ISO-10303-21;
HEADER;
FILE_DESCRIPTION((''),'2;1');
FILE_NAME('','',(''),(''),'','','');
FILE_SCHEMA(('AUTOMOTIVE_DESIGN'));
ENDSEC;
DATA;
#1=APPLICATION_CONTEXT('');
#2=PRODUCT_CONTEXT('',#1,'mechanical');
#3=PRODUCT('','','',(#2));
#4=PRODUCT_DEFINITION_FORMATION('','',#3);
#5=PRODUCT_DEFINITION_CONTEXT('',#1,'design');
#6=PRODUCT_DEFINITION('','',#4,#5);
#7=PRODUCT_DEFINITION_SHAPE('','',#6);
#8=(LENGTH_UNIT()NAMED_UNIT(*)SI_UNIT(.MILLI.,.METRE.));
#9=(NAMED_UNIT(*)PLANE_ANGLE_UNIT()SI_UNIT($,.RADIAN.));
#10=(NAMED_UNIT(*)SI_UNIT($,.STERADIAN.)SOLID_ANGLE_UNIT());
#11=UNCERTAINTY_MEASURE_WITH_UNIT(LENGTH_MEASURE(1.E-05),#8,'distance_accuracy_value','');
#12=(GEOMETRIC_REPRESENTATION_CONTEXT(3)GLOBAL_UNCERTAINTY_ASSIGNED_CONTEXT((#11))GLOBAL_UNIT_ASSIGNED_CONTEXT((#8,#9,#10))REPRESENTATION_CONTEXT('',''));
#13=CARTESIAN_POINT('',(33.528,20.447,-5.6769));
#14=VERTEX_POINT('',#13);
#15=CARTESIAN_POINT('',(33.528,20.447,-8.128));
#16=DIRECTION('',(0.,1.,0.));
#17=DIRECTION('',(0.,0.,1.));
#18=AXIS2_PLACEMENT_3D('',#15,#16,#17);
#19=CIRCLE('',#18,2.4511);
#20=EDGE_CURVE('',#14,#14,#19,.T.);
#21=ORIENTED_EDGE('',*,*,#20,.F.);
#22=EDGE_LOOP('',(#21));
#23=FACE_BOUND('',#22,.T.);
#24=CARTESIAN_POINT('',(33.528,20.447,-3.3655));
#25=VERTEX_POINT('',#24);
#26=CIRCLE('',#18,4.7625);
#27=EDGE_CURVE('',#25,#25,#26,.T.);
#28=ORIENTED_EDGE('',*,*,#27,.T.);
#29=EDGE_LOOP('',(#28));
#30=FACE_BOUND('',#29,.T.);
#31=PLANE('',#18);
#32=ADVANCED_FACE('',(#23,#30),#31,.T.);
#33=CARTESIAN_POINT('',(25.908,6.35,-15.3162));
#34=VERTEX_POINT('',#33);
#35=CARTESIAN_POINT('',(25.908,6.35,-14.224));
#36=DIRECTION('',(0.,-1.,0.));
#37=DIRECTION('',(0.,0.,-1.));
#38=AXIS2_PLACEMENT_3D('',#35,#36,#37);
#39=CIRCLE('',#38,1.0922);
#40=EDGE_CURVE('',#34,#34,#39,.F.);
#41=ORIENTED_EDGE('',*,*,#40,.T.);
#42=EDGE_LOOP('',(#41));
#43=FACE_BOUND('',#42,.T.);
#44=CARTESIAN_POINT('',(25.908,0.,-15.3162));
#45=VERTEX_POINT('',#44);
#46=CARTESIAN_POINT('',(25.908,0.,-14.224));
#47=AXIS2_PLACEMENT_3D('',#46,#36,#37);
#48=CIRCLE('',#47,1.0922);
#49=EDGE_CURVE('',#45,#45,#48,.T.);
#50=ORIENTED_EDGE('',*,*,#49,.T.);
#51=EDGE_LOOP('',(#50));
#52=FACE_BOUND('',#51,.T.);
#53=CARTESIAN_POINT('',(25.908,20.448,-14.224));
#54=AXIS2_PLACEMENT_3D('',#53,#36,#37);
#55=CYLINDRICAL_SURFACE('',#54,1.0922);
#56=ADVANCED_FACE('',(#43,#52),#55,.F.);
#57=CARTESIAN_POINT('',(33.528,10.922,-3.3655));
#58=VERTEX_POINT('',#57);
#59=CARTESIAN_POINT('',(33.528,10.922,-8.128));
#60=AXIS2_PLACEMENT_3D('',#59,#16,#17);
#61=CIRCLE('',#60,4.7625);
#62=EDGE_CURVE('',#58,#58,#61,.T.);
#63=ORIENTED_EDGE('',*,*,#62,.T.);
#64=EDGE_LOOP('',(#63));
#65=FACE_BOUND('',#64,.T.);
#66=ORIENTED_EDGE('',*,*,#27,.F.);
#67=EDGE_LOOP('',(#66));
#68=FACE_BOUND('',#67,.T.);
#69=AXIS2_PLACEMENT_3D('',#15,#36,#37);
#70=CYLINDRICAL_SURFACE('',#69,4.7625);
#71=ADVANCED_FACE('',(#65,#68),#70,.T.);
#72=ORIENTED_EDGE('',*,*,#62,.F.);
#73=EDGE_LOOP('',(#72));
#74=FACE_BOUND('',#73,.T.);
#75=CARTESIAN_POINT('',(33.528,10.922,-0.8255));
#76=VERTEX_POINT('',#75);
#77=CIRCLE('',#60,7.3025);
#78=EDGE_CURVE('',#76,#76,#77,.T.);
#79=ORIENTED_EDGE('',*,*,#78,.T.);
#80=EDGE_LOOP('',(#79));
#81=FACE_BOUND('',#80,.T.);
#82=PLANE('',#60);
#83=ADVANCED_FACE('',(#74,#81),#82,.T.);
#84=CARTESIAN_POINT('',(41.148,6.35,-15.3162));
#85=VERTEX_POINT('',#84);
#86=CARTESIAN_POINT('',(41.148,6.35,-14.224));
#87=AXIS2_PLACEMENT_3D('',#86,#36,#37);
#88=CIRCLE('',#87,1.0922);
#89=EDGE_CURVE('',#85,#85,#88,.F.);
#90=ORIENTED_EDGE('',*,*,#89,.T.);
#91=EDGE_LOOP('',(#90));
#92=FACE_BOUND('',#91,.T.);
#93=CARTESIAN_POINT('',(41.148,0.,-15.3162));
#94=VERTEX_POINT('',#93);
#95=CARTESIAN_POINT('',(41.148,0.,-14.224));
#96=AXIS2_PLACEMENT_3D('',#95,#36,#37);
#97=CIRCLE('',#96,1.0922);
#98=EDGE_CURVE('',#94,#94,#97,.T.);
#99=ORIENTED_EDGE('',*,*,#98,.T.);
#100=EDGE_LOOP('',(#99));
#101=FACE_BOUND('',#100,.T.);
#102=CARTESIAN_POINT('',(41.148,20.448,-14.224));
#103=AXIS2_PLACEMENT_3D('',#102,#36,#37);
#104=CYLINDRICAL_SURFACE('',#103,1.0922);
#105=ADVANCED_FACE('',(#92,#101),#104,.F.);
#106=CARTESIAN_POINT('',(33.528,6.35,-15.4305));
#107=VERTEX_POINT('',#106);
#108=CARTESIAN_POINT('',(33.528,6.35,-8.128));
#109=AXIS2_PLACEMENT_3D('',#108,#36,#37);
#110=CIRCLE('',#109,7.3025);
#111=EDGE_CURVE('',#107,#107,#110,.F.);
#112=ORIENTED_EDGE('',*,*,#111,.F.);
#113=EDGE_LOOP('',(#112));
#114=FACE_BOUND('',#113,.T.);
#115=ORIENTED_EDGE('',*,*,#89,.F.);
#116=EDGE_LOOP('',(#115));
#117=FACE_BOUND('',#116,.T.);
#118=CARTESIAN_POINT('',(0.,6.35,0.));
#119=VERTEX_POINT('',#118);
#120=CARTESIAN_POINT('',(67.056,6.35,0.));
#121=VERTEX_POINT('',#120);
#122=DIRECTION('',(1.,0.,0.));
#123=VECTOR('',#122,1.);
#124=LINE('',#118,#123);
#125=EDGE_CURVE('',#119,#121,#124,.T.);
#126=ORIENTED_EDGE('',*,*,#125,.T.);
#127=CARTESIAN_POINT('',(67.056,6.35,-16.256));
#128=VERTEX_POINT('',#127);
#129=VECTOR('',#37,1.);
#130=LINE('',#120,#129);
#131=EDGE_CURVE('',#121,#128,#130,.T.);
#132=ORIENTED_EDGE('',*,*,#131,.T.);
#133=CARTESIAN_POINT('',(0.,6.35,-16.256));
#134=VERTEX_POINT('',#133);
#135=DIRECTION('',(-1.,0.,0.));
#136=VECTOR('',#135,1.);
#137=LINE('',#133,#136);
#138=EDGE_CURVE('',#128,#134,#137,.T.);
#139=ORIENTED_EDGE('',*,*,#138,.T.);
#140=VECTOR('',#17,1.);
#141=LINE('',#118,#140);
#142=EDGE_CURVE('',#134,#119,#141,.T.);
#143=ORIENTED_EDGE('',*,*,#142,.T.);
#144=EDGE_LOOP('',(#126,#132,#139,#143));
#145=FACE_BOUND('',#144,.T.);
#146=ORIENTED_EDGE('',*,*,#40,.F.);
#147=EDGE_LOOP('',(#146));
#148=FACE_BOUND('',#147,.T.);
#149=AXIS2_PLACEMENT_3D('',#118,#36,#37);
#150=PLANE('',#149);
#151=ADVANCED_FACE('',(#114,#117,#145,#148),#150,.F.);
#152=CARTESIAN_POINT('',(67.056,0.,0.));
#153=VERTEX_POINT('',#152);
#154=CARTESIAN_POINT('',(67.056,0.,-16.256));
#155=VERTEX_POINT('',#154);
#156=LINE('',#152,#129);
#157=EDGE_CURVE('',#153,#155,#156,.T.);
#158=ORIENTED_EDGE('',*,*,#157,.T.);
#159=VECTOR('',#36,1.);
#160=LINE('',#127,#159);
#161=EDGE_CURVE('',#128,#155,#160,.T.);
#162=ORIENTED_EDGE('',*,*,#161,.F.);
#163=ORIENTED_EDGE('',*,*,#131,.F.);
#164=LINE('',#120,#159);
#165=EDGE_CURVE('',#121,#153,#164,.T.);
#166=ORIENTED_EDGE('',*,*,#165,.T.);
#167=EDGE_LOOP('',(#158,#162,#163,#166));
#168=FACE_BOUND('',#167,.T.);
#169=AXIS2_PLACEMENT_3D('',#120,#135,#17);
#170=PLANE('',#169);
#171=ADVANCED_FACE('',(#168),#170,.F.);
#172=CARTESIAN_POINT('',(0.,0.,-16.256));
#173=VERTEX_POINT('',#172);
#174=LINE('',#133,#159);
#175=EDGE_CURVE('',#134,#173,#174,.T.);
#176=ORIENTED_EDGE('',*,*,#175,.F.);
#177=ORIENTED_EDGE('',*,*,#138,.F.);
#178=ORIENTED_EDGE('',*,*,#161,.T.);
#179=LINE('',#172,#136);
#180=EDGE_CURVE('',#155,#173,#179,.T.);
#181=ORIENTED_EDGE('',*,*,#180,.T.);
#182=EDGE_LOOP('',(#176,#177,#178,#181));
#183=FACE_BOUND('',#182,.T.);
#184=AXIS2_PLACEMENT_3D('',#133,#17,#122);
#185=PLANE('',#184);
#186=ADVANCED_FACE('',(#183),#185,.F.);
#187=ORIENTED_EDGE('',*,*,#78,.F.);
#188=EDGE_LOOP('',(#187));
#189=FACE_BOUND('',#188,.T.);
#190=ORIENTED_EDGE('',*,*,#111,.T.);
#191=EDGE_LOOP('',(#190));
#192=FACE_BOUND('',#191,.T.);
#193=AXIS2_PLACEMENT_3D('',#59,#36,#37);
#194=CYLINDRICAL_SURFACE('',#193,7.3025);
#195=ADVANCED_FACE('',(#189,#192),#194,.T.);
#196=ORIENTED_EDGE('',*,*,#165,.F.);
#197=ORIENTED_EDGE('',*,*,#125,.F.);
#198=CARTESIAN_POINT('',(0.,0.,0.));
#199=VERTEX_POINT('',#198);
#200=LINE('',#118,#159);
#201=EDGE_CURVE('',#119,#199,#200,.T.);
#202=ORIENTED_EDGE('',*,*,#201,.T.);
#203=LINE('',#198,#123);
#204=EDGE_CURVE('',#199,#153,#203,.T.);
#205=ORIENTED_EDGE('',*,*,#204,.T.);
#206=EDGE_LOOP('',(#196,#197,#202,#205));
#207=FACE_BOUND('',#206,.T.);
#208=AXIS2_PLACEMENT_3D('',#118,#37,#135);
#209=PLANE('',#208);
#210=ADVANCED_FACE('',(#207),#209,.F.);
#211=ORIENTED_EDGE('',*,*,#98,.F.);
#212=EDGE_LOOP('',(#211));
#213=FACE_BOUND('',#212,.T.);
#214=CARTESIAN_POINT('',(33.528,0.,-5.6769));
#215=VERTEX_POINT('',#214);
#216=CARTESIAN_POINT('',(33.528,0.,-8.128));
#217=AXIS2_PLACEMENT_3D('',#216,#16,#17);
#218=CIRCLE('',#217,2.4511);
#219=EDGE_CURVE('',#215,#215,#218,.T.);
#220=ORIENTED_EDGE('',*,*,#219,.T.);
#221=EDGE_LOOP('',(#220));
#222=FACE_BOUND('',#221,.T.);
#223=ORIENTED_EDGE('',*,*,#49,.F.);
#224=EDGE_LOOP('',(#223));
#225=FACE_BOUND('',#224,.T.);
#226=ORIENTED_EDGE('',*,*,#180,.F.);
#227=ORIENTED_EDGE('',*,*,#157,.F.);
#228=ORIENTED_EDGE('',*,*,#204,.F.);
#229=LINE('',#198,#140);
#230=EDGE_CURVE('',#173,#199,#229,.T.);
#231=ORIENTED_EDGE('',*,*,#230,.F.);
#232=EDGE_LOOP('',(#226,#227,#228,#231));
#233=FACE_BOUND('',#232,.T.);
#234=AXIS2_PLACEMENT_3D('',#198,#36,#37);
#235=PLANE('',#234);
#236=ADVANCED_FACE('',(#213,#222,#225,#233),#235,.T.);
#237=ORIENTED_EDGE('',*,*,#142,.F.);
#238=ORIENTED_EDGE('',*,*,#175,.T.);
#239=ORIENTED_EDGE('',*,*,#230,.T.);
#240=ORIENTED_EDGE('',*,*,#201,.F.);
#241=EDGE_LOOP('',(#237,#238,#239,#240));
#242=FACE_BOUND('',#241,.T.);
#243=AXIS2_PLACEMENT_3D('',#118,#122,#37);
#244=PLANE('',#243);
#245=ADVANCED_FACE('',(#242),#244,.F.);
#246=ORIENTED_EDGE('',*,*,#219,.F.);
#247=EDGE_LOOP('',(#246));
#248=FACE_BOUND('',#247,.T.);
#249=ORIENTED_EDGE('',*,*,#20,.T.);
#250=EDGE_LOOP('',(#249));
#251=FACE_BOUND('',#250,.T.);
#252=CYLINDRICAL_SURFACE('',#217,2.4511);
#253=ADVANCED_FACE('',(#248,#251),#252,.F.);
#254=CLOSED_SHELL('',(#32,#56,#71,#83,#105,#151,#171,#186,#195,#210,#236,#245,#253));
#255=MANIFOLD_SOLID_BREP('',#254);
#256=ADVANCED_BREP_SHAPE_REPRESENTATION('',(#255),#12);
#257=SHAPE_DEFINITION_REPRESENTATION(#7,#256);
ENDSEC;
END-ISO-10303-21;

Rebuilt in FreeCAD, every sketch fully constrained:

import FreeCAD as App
import Part
import Sketcher
from FreeCAD import Vector
Q = App.Units.Quantity

doc = App.newDocument("Part")
body = doc.addObject("PartDesign::Body", "Body")

# Sketch on XZ plane
sketch1 = body.newObject("Sketcher::SketchObject", "Sketch")
sketch1.AttachmentSupport = (doc.getObject("XZ_Plane"), [""])
sketch1.MapMode = "FlatFace"
sketch1.addGeometry(Part.LineSegment(Vector(0, -16.256, 0), Vector(0, 0, 0)), False)
sketch1.addGeometry(Part.LineSegment(Vector(0, 0, 0), Vector(67.056, 0, 0)), False)
sketch1.addGeometry(Part.LineSegment(Vector(67.056, 0, 0), Vector(67.056, -16.256, 0)), False)
sketch1.addGeometry(Part.LineSegment(Vector(67.056, -16.256, 0), Vector(0, -16.256, 0)), False)
sketch1.addConstraint(Sketcher.Constraint("Coincident", 0, 2, 1, 1))
sketch1.addConstraint(Sketcher.Constraint("Coincident", 1, 2, 2, 1))
sketch1.addConstraint(Sketcher.Constraint("Coincident", 2, 2, 3, 1))
sketch1.addConstraint(Sketcher.Constraint("Coincident", 3, 2, 0, 1))
sketch1.addConstraint(Sketcher.Constraint("Vertical", 0))
sketch1.addConstraint(Sketcher.Constraint("Horizontal", 1))
sketch1.addConstraint(Sketcher.Constraint("Vertical", 2))
sketch1.addConstraint(Sketcher.Constraint("Horizontal", 3))
sketch1.addConstraint(Sketcher.Constraint("Coincident", 0, 2, -1, 1))
sketch1.addConstraint(Sketcher.Constraint("DistanceX", 1, 1, 1, 2, Q("2.64 in")))
sketch1.addConstraint(Sketcher.Constraint("DistanceY", 0, 1, 0, 2, Q("0.64 in")))
pad1 = body.newObject("PartDesign::Pad", "Pad")
pad1.Profile = sketch1
pad1.Length = Q("0.25 in")
pad1.Reversed = True

# Sketch on XZ plane
sketch2 = body.newObject("Sketcher::SketchObject", "Sketch001")
sketch2.AttachmentSupport = (doc.getObject("XZ_Plane"), [""])
sketch2.MapMode = "FlatFace"
sketch2.AttachmentOffset = App.Placement(Vector(0, 0, -0.25 * 25.4), App.Rotation())
sketch2.addGeometry(Part.Circle(Vector(33.528, -8.128, 0), Vector(0, 0, 1), 4.7625), False)
sketch2.addConstraint(Sketcher.Constraint("Diameter", 0, Q("0.375 in")))
sketch2.addConstraint(Sketcher.Constraint("DistanceX", -1, 1, 0, 3, Q("1.32 in")))
sketch2.addConstraint(Sketcher.Constraint("DistanceY", 0, 3, -1, 1, Q("0.32 in")))
pad2 = body.newObject("PartDesign::Pad", "Pad001")
pad2.Profile = sketch2
pad2.Length = Q("0.555 in")
pad2.Reversed = True

# Sketch on XZ plane
sketch3 = body.newObject("Sketcher::SketchObject", "Sketch002")
sketch3.AttachmentSupport = (doc.getObject("XZ_Plane"), [""])
sketch3.MapMode = "FlatFace"
sketch3.AttachmentOffset = App.Placement(Vector(0, 0, -0.805 * 25.4), App.Rotation())
sketch3.addGeometry(Part.Circle(Vector(33.528, -8.128, 0), Vector(0, 0, 1), 2.4511), False)
sketch3.addConstraint(Sketcher.Constraint("Diameter", 0, Q("0.193 in")))
sketch3.addConstraint(Sketcher.Constraint("DistanceX", -1, 1, 0, 3, Q("1.32 in")))
sketch3.addConstraint(Sketcher.Constraint("DistanceY", 0, 3, -1, 1, Q("0.32 in")))
pocket1 = body.newObject("PartDesign::Pocket", "Pocket")
pocket1.Profile = sketch3
pocket1.Type = "ThroughAll"
pocket1.Reversed = True

# Sketch on XZ plane
sketch4 = body.newObject("Sketcher::SketchObject", "Sketch003")
sketch4.AttachmentSupport = (doc.getObject("XZ_Plane"), [""])
sketch4.MapMode = "FlatFace"
sketch4.addGeometry(Part.Circle(Vector(25.908, -14.224, 0), Vector(0, 0, 1), 1.0922), False)
sketch4.addConstraint(Sketcher.Constraint("Diameter", 0, Q("0.086 in")))
sketch4.addConstraint(Sketcher.Constraint("DistanceX", -1, 1, 0, 3, Q("1.02 in")))
sketch4.addConstraint(Sketcher.Constraint("DistanceY", 0, 3, -1, 1, Q("0.56 in")))
pocket2 = body.newObject("PartDesign::Pocket", "Pocket001")
pocket2.Profile = sketch4
pocket2.Type = "UpToFirst"

# Sketch on XZ plane
sketch5 = body.newObject("Sketcher::SketchObject", "Sketch004")
sketch5.AttachmentSupport = (doc.getObject("XZ_Plane"), [""])
sketch5.MapMode = "FlatFace"
sketch5.addGeometry(Part.Circle(Vector(41.148, -14.224, 0), Vector(0, 0, 1), 1.0922), False)
sketch5.addConstraint(Sketcher.Constraint("Diameter", 0, Q("0.086 in")))
sketch5.addConstraint(Sketcher.Constraint("DistanceX", -1, 1, 0, 3, Q("1.62 in")))
sketch5.addConstraint(Sketcher.Constraint("DistanceY", 0, 3, -1, 1, Q("0.56 in")))
pocket3 = body.newObject("PartDesign::Pocket", "Pocket002")
pocket3.Profile = sketch5
pocket3.Type = "UpToFirst"

# Sketch on XZ plane
sketch6 = body.newObject("Sketcher::SketchObject", "Sketch005")
sketch6.AttachmentSupport = (doc.getObject("XZ_Plane"), [""])
sketch6.MapMode = "FlatFace"
sketch6.AttachmentOffset = App.Placement(Vector(0, 0, -0.25 * 25.4), App.Rotation())
sketch6.addGeometry(Part.Circle(Vector(33.528, -8.128, 0), Vector(0, 0, 1), 7.3025), False)
sketch6.addGeometry(Part.Circle(Vector(33.528, -8.128, 0), Vector(0, 0, 1), 4.7625), False)
sketch6.addConstraint(Sketcher.Constraint("Coincident", 1, 3, 0, 3))
sketch6.addConstraint(Sketcher.Constraint("Diameter", 0, Q("0.575 in")))
sketch6.addConstraint(Sketcher.Constraint("Diameter", 1, Q("0.375 in")))
sketch6.addConstraint(Sketcher.Constraint("DistanceX", -1, 1, 0, 3, Q("1.32 in")))
sketch6.addConstraint(Sketcher.Constraint("DistanceY", 0, 3, -1, 1, Q("0.32 in")))
pad3 = body.newObject("PartDesign::Pad", "Pad002")
pad3.Profile = sketch6
pad3.Length = Q("0.18 in")
pad3.Reversed = True

doc.recompute()
